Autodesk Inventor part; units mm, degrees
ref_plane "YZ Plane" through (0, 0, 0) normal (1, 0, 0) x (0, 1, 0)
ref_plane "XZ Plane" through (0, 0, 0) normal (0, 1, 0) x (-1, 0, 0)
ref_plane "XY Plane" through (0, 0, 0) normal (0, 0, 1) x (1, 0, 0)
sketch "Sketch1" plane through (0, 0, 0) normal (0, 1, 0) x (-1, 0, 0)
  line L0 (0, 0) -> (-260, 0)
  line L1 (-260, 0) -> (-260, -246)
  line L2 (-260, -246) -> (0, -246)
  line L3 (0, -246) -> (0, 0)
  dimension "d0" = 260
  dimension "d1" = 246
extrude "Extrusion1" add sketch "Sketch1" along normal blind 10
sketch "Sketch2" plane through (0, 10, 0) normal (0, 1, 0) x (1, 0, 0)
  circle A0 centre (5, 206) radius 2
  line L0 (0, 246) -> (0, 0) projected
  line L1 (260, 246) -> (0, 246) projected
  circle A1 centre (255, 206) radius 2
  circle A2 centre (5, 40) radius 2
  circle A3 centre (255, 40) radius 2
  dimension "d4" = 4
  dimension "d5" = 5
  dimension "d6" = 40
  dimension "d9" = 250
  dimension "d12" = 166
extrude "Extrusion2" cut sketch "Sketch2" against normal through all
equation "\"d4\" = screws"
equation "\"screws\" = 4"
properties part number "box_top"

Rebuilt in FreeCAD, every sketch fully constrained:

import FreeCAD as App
import Part
import Sketcher
Q = App.Units.Quantity

doc = App.newDocument("Part")
body = doc.addObject("PartDesign::Body", "Body")

sketch1 = body.newObject("Sketcher::SketchObject", "Sketch")
sketch1.AttachmentSupport = (doc.getObject("XZ_Plane"), [""])
sketch1.MapMode = "FlatFace"
sketch1.addGeometry([
    Part.LineSegment(App.Vector(0, -246, 0), App.Vector(0, 0, 0)),
    Part.LineSegment(App.Vector(0, 0, 0), App.Vector(260, 0, 0)),
    Part.LineSegment(App.Vector(260, 0, 0), App.Vector(260, -246, 0)),
    Part.LineSegment(App.Vector(260, -246, 0), App.Vector(0, -246, 0)),
], False)
sketch1.addConstraint([
    Sketcher.Constraint("Coincident", 0, 2, 1, 1),
    Sketcher.Constraint("Coincident", 1, 2, 2, 1),
    Sketcher.Constraint("Coincident", 2, 2, 3, 1),
    Sketcher.Constraint("Coincident", 3, 2, 0, 1),
    Sketcher.Constraint("Vertical", 0),
    Sketcher.Constraint("Horizontal", 1),
    Sketcher.Constraint("Vertical", 2),
    Sketcher.Constraint("Horizontal", 3),
    Sketcher.Constraint("Coincident", 0, 2, -1, 1),
    Sketcher.Constraint("DistanceX", 1, 1, 1, 2, Q("260 mm")),
    Sketcher.Constraint("DistanceY", 0, 1, 0, 2, Q("246 mm")),
])
pad1 = body.newObject("PartDesign::Pad", "Pad")
pad1.Profile = sketch1
pad1.Length = 10
pad1.Reversed = True

sketch2 = body.newObject("Sketcher::SketchObject", "Sketch001")
sketch2.AttachmentSupport = (doc.getObject("XZ_Plane"), [""])
sketch2.MapMode = "FlatFace"
sketch2.AttachmentOffset = App.Placement(App.Vector(0, 0, -10), App.Rotation())
sketch2.addGeometry([
    Part.Circle(App.Vector(5, -206, 0), App.Vector(0, 0, 1), 2),
    Part.Circle(App.Vector(255, -206, 0), App.Vector(0, 0, 1), 2),
    Part.Circle(App.Vector(5, -40, 0), App.Vector(0, 0, 1), 2),
    Part.Circle(App.Vector(255, -40, 0), App.Vector(0, 0, 1), 2),
], False)
sketch2.addConstraint([
    Sketcher.Constraint("Equal", 0, 1),
    Sketcher.Constraint("Equal", 1, 2),
    Sketcher.Constraint("Equal", 2, 3),
    Sketcher.Constraint("Horizontal", 0, 3, 1, 3),
    Sketcher.Constraint("Horizontal", 2, 3, 3, 3),
    Sketcher.Constraint("Vertical", 0, 3, 2, 3),
    Sketcher.Constraint("Vertical", 1, 3, 3, 3),
    Sketcher.Constraint("Diameter", 0, Q("4 mm")),
    Sketcher.Constraint("DistanceX", -1, 1, 0, 3, Q("5 mm")),
    Sketcher.Constraint("DistanceY", 2, 3, -1, 1, Q("40 mm")),
    Sketcher.Constraint("DistanceX", 0, 3, 1, 3, Q("250 mm")),
    Sketcher.Constraint("DistanceY", 0, 3, 2, 3, Q("166 mm")),
])
pocket1 = body.newObject("PartDesign::Pocket", "Pocket")
pocket1.Profile = sketch2
pocket1.Type = "ThroughAll"
pocket1.Reversed = True

doc.recompute()
